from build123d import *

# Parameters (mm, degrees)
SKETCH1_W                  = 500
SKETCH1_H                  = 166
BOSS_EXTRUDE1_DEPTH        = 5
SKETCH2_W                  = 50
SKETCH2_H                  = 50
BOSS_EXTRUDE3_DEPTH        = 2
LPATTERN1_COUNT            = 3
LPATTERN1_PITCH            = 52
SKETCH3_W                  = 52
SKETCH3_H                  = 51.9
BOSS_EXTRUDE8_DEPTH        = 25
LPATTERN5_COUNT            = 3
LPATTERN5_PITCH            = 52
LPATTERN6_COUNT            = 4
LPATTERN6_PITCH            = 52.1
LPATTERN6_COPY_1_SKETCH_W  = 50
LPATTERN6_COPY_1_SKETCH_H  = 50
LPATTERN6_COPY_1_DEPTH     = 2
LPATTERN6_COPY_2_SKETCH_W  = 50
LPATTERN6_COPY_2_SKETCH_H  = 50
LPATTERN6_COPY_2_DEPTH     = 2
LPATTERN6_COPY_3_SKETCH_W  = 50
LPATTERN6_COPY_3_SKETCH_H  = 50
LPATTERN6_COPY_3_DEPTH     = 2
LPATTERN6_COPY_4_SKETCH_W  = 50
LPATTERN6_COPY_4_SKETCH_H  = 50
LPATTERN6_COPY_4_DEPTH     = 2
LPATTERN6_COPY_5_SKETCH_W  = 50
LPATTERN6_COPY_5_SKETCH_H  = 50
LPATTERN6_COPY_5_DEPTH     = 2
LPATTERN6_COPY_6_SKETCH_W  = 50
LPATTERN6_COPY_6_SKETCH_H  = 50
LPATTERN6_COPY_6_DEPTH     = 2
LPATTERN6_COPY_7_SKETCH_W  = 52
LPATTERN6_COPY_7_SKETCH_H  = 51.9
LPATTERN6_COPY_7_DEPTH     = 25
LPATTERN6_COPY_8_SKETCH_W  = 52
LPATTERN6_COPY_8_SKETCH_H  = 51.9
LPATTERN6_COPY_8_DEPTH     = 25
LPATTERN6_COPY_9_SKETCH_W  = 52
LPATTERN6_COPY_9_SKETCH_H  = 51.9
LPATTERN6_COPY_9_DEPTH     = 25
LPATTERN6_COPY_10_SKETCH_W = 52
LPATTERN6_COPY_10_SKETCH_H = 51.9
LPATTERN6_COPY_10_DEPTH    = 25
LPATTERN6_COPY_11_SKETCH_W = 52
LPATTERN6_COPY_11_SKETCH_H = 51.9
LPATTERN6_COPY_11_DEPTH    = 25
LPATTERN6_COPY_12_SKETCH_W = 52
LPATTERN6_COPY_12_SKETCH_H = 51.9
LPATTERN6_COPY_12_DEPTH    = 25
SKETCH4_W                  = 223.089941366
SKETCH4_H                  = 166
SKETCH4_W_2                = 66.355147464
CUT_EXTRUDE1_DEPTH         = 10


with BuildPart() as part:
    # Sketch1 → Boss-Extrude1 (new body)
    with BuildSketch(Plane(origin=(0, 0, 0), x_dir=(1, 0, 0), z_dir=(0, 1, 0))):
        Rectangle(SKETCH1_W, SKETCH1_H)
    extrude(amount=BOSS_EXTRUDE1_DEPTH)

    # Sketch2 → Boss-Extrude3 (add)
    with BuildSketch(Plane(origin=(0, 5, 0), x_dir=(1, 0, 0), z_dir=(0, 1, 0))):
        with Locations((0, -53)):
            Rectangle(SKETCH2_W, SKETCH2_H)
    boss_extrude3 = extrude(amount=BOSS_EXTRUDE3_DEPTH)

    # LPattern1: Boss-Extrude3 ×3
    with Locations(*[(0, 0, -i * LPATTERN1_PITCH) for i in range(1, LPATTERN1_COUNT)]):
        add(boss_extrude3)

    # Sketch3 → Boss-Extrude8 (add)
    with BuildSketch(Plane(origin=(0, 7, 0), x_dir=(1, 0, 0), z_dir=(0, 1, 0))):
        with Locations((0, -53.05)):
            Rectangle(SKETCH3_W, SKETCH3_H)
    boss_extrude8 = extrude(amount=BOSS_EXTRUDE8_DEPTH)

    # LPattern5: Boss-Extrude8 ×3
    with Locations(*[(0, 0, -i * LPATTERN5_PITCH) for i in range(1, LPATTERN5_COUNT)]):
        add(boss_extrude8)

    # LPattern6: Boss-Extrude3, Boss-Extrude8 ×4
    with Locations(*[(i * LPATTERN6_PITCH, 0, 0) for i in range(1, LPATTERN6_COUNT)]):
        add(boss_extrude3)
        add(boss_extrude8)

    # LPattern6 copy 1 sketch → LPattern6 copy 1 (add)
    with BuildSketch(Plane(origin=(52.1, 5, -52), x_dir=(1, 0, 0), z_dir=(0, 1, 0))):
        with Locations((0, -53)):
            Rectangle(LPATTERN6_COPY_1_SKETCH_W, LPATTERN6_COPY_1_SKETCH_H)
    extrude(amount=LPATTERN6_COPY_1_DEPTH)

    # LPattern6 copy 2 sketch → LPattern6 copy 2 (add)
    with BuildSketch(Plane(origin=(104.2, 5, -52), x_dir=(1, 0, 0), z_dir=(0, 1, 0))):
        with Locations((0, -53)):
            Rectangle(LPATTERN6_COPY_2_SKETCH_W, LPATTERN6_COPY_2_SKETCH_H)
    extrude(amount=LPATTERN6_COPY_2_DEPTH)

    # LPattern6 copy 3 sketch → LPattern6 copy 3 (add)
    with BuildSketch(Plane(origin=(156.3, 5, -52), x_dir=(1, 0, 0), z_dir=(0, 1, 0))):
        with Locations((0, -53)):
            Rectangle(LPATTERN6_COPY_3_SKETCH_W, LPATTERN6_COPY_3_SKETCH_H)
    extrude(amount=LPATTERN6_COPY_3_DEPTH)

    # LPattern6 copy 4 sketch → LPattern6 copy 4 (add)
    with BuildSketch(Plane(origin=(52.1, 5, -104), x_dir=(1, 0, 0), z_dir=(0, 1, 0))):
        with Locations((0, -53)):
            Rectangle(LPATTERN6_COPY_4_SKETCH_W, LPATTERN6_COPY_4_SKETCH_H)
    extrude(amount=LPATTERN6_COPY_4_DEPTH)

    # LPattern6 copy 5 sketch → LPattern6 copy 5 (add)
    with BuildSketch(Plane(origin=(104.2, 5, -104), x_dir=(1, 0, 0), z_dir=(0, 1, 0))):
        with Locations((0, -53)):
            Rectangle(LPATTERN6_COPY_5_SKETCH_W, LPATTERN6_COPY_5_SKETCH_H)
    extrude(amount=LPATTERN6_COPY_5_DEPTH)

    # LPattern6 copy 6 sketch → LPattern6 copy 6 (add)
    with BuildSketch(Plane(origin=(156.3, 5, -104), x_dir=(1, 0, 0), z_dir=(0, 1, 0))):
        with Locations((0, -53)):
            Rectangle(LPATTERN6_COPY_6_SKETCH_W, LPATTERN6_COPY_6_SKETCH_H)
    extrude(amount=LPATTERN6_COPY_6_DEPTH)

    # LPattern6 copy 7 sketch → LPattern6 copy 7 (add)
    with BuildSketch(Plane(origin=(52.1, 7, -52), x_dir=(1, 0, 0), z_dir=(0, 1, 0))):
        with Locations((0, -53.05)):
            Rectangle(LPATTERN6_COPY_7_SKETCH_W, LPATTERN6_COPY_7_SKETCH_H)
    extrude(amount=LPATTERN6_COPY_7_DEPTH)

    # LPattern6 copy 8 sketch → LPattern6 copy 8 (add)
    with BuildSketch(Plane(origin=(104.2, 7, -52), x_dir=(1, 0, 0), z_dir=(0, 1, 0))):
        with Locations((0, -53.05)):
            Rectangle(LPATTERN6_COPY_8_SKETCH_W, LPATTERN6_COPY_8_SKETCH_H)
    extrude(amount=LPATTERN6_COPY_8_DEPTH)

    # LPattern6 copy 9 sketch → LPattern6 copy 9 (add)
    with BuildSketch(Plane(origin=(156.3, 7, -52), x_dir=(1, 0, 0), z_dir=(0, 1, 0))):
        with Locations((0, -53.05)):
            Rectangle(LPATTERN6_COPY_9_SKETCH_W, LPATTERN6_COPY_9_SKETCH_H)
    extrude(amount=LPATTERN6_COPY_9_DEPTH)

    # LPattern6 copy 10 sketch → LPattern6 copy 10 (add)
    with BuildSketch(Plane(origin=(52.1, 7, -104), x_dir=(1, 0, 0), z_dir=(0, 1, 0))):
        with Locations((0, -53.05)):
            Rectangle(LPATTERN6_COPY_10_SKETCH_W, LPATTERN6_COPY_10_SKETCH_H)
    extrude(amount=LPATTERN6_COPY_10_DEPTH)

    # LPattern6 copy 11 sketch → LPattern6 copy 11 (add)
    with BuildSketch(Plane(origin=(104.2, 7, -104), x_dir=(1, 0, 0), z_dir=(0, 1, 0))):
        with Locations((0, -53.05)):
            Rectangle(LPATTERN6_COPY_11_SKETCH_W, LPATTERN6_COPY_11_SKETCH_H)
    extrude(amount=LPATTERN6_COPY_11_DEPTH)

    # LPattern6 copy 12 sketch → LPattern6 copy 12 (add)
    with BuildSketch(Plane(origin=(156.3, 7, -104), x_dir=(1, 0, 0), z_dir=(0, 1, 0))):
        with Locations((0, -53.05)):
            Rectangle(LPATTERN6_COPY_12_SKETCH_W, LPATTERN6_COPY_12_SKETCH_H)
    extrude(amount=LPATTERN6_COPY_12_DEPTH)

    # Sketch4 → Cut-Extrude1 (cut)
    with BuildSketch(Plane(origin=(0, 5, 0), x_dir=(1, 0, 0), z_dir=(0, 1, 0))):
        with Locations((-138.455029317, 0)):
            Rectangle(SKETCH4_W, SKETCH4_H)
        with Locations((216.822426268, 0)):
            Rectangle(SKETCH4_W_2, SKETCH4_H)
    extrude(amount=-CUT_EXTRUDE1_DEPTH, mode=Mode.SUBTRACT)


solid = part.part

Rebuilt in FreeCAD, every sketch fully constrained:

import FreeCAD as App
import Part
import Sketcher
from FreeCAD import Vector


def add_polygon(sketch, points):
    """Adds a closed chain of lines whose ends are joined by coincident constraints."""
    first, n = sketch.GeometryCount, len(points)
    for a, b in zip(points, points[1:] + points[:1]):
        sketch.addGeometry(Part.LineSegment(App.Vector(*a, 0), App.Vector(*b, 0)), False)
    for i in range(n):
        sketch.addConstraint(Sketcher.Constraint("Coincident", first + i, 2, first + (i + 1) % n, 1))

doc = App.newDocument("Part")
body = doc.addObject("PartDesign::Body", "Body")

sketch1 = body.newObject("Sketcher::SketchObject", "Sketch")
sketch1.AttachmentSupport = (doc.getObject("XZ_Plane"), [""])
sketch1.MapMode = "FlatFace"
add_polygon(sketch1, [(-250, -83), (-250, 83), (250, 83), (250, -83)])
sketch1.addConstraint(Sketcher.Constraint("Vertical", 0))
sketch1.addConstraint(Sketcher.Constraint("Horizontal", 1))
sketch1.addConstraint(Sketcher.Constraint("Vertical", 2))
sketch1.addConstraint(Sketcher.Constraint("Horizontal", 3))
sketch1.addConstraint(Sketcher.Constraint("Symmetric", 0, 2, 2, 2, -1, 1))
sketch1.addConstraint(Sketcher.Constraint("DistanceX", 1, 1, 1, 2, 500.0))
sketch1.addConstraint(Sketcher.Constraint("DistanceY", 0, 1, 0, 2, 166.0))
pad1 = body.newObject("PartDesign::Pad", "Pad")
pad1.Profile = sketch1
pad1.Length = 5
pad1.Reversed = True

sketch2 = body.newObject("Sketcher::SketchObject", "Sketch001")
sketch2.AttachmentSupport = (doc.getObject("XZ_Plane"), [""])
sketch2.MapMode = "FlatFace"
sketch2.AttachmentOffset = App.Placement(Vector(0, 0, -5), App.Rotation())
add_polygon(sketch2, [(-25, 28), (-25, 78), (25, 78), (25, 28)])
sketch2.addConstraint(Sketcher.Constraint("Vertical", 0))
sketch2.addConstraint(Sketcher.Constraint("Horizontal", 1))
sketch2.addConstraint(Sketcher.Constraint("Vertical", 2))
sketch2.addConstraint(Sketcher.Constraint("Horizontal", 3))
sketch2.addConstraint(Sketcher.Constraint("Equal", 3, 0))
sketch2.addConstraint(Sketcher.Constraint("DistanceX", 1, 1, 1, 2, 50.0))
sketch2.addConstraint(Sketcher.Constraint("DistanceX", 0, 2, -1, 1, 25.0))
sketch2.addConstraint(Sketcher.Constraint("DistanceY", -1, 1, 0, 2, 78.0))
pad2 = body.newObject("PartDesign::Pad", "Pad001")
pad2.Profile = sketch2
pad2.Length = 2
pad2.Reversed = True
doc.recompute()

linearpattern = body.newObject("PartDesign::LinearPattern", "LinearPattern")
linearpattern.Originals = [pad2]
linearpattern.Direction = (doc.getObject("Z_Axis"), [""])
linearpattern.Mode = "offset"
linearpattern.Offset = 52
linearpattern.Occurrences = 3
linearpattern.Reversed = True
body.Tip = linearpattern

sketch3 = body.newObject("Sketcher::SketchObject", "Sketch002")
sketch3.AttachmentSupport = (doc.getObject("XZ_Plane"), [""])
sketch3.MapMode = "FlatFace"
sketch3.AttachmentOffset = App.Placement(Vector(0, 0, -7), App.Rotation())
add_polygon(sketch3, [(-26, 27.1), (-26, 79), (26, 79), (26, 27.1)])
sketch3.addConstraint(Sketcher.Constraint("Vertical", 0))
sketch3.addConstraint(Sketcher.Constraint("Horizontal", 1))
sketch3.addConstraint(Sketcher.Constraint("Vertical", 2))
sketch3.addConstraint(Sketcher.Constraint("Horizontal", 3))
sketch3.addConstraint(Sketcher.Constraint("DistanceX", 1, 1, 1, 2, 52.0))
sketch3.addConstraint(Sketcher.Constraint("DistanceY", 0, 1, 0, 2, 51.9))
sketch3.addConstraint(Sketcher.Constraint("DistanceX", 0, 2, -1, 1, 26.0))
sketch3.addConstraint(Sketcher.Constraint("DistanceY", -1, 1, 0, 2, 79.0))
pad3 = body.newObject("PartDesign::Pad", "Pad002")
pad3.Profile = sketch3
pad3.Length = 25
pad3.Reversed = True
doc.recompute()

linearpattern2 = body.newObject("PartDesign::LinearPattern", "LinearPattern001")
linearpattern2.Originals = [pad3]
linearpattern2.Direction = (doc.getObject("Z_Axis"), [""])
linearpattern2.Mode = "offset"
linearpattern2.Offset = 52
linearpattern2.Occurrences = 3
linearpattern2.Reversed = True
body.Tip = linearpattern2
doc.recompute()

linearpattern3 = body.newObject("PartDesign::LinearPattern", "LinearPattern002")
linearpattern3.Originals = [pad2, pad3]
linearpattern3.Direction = (doc.getObject("X_Axis"), [""])
linearpattern3.Mode = "offset"
linearpattern3.Offset = 52.1
linearpattern3.Occurrences = 4
body.Tip = linearpattern3

sketch4 = body.newObject("Sketcher::SketchObject", "Sketch003")
sketch4.AttachmentSupport = (doc.getObject("XZ_Plane"), [""])
sketch4.MapMode = "FlatFace"
sketch4.AttachmentOffset = App.Placement(Vector(0, 0, -5), App.Rotation())
add_polygon(sketch4, [(27.1, -24), (27.1, 26), (77.1, 26), (77.1, -24)])
sketch4.addConstraint(Sketcher.Constraint("Vertical", 0))
sketch4.addConstraint(Sketcher.Constraint("Horizontal", 1))
sketch4.addConstraint(Sketcher.Constraint("Vertical", 2))
sketch4.addConstraint(Sketcher.Constraint("Horizontal", 3))
sketch4.addConstraint(Sketcher.Constraint("Equal", 3, 0))
sketch4.addConstraint(Sketcher.Constraint("DistanceX", 1, 1, 1, 2, 50.0))
sketch4.addConstraint(Sketcher.Constraint("DistanceY", -1, 1, 0, 2, 26.0))
sketch4.addConstraint(Sketcher.Constraint("DistanceX", -1, 1, 0, 2, 27.1))
pad4 = body.newObject("PartDesign::Pad", "Pad003")
pad4.Profile = sketch4
pad4.Length = 2
pad4.Reversed = True

sketch5 = body.newObject("Sketcher::SketchObject", "Sketch004")
sketch5.AttachmentSupport = (doc.getObject("XZ_Plane"), [""])
sketch5.MapMode = "FlatFace"
sketch5.AttachmentOffset = App.Placement(Vector(0, 0, -5), App.Rotation())
add_polygon(sketch5, [(79.2, -24), (79.2, 26), (129.2, 26), (129.2, -24)])
sketch5.addConstraint(Sketcher.Constraint("Vertical", 0))
sketch5.addConstraint(Sketcher.Constraint("Horizontal", 1))
sketch5.addConstraint(Sketcher.Constraint("Vertical", 2))
sketch5.addConstraint(Sketcher.Constraint("Horizontal", 3))
sketch5.addConstraint(Sketcher.Constraint("Equal", 3, 0))
sketch5.addConstraint(Sketcher.Constraint("DistanceX", 1, 1, 1, 2, 50.0))
sketch5.addConstraint(Sketcher.Constraint("DistanceY", -1, 1, 0, 2, 26.0))
sketch5.addConstraint(Sketcher.Constraint("DistanceX", -1, 1, 0, 2, 79.2))
pad5 = body.newObject("PartDesign::Pad", "Pad004")
pad5.Profile = sketch5
pad5.Length = 2
pad5.Reversed = True

sketch6 = body.newObject("Sketcher::SketchObject", "Sketch005")
sketch6.AttachmentSupport = (doc.getObject("XZ_Plane"), [""])
sketch6.MapMode = "FlatFace"
sketch6.AttachmentOffset = App.Placement(Vector(0, 0, -5), App.Rotation())
add_polygon(sketch6, [(131.3, -24), (131.3, 26), (181.3, 26), (181.3, -24)])
sketch6.addConstraint(Sketcher.Constraint("Vertical", 0))
sketch6.addConstraint(Sketcher.Constraint("Horizontal", 1))
sketch6.addConstraint(Sketcher.Constraint("Vertical", 2))
sketch6.addConstraint(Sketcher.Constraint("Horizontal", 3))
sketch6.addConstraint(Sketcher.Constraint("Equal", 3, 0))
sketch6.addConstraint(Sketcher.Constraint("DistanceX", 1, 1, 1, 2, 50.0))
sketch6.addConstraint(Sketcher.Constraint("DistanceY", -1, 1, 0, 2, 26.0))
sketch6.addConstraint(Sketcher.Constraint("DistanceX", -1, 1, 0, 2, 131.3))
pad6 = body.newObject("PartDesign::Pad", "Pad005")
pad6.Profile = sketch6
pad6.Length = 2
pad6.Reversed = True

sketch7 = body.newObject("Sketcher::SketchObject", "Sketch006")
sketch7.AttachmentSupport = (doc.getObject("XZ_Plane"), [""])
sketch7.MapMode = "FlatFace"
sketch7.AttachmentOffset = App.Placement(Vector(0, 0, -5), App.Rotation())
add_polygon(sketch7, [(27.1, -76), (27.1, -26), (77.1, -26), (77.1, -76)])
sketch7.addConstraint(Sketcher.Constraint("Vertical", 0))
sketch7.addConstraint(Sketcher.Constraint("Horizontal", 1))
sketch7.addConstraint(Sketcher.Constraint("Vertical", 2))
sketch7.addConstraint(Sketcher.Constraint("Horizontal", 3))
sketch7.addConstraint(Sketcher.Constraint("Equal", 3, 0))
sketch7.addConstraint(Sketcher.Constraint("DistanceX", 1, 1, 1, 2, 50.0))
sketch7.addConstraint(Sketcher.Constraint("DistanceY", 0, 2, -1, 1, 26.0))
sketch7.addConstraint(Sketcher.Constraint("DistanceX", -1, 1, 0, 2, 27.1))
pad7 = body.newObject("PartDesign::Pad", "Pad006")
pad7.Profile = sketch7
pad7.Length = 2
pad7.Reversed = True

sketch8 = body.newObject("Sketcher::SketchObject", "Sketch007")
sketch8.AttachmentSupport = (doc.getObject("XZ_Plane"), [""])
sketch8.MapMode = "FlatFace"
sketch8.AttachmentOffset = App.Placement(Vector(0, 0, -5), App.Rotation())
add_polygon(sketch8, [(79.2, -76), (79.2, -26), (129.2, -26), (129.2, -76)])
sketch8.addConstraint(Sketcher.Constraint("Vertical", 0))
sketch8.addConstraint(Sketcher.Constraint("Horizontal", 1))
sketch8.addConstraint(Sketcher.Constraint("Vertical", 2))
sketch8.addConstraint(Sketcher.Constraint("Horizontal", 3))
sketch8.addConstraint(Sketcher.Constraint("Equal", 3, 0))
sketch8.addConstraint(Sketcher.Constraint("DistanceX", 1, 1, 1, 2, 50.0))
sketch8.addConstraint(Sketcher.Constraint("DistanceY", 0, 2, -1, 1, 26.0))
sketch8.addConstraint(Sketcher.Constraint("DistanceX", -1, 1, 0, 2, 79.2))
pad8 = body.newObject("PartDesign::Pad", "Pad007")
pad8.Profile = sketch8
pad8.Length = 2
pad8.Reversed = True

sketch9 = body.newObject("Sketcher::SketchObject", "Sketch008")
sketch9.AttachmentSupport = (doc.getObject("XZ_Plane"), [""])
sketch9.MapMode = "FlatFace"
sketch9.AttachmentOffset = App.Placement(Vector(0, 0, -5), App.Rotation())
add_polygon(sketch9, [(131.3, -76), (131.3, -26), (181.3, -26), (181.3, -76)])
sketch9.addConstraint(Sketcher.Constraint("Vertical", 0))
sketch9.addConstraint(Sketcher.Constraint("Horizontal", 1))
sketch9.addConstraint(Sketcher.Constraint("Vertical", 2))
sketch9.addConstraint(Sketcher.Constraint("Horizontal", 3))
sketch9.addConstraint(Sketcher.Constraint("Equal", 3, 0))
sketch9.addConstraint(Sketcher.Constraint("DistanceX", 1, 1, 1, 2, 50.0))
sketch9.addConstraint(Sketcher.Constraint("DistanceY", 0, 2, -1, 1, 26.0))
sketch9.addConstraint(Sketcher.Constraint("DistanceX", -1, 1, 0, 2, 131.3))
pad9 = body.newObject("PartDesign::Pad", "Pad008")
pad9.Profile = sketch9
pad9.Length = 2
pad9.Reversed = True

sketch10 = body.newObject("Sketcher::SketchObject", "Sketch009")
sketch10.AttachmentSupport = (doc.getObject("XZ_Plane"), [""])
sketch10.MapMode = "FlatFace"
sketch10.AttachmentOffset = App.Placement(Vector(0, 0, -7), App.Rotation())
add_polygon(sketch10, [(26.1, -24.9), (26.1, 27), (78.1, 27), (78.1, -24.9)])
sketch10.addConstraint(Sketcher.Constraint("Vertical", 0))
sketch10.addConstraint(Sketcher.Constraint("Horizontal", 1))
sketch10.addConstraint(Sketcher.Constraint("Vertical", 2))
sketch10.addConstraint(Sketcher.Constraint("Horizontal", 3))
sketch10.addConstraint(Sketcher.Constraint("DistanceX", 1, 1, 1, 2, 52.0))
sketch10.addConstraint(Sketcher.Constraint("DistanceY", 0, 1, 0, 2, 51.9))
sketch10.addConstraint(Sketcher.Constraint("DistanceY", -1, 1, 0, 2, 27.0))
sketch10.addConstraint(Sketcher.Constraint("DistanceX", -1, 1, 0, 2, 26.1))
pad10 = body.newObject("PartDesign::Pad", "Pad009")
pad10.Profile = sketch10
pad10.Length = 25
pad10.Reversed = True

sketch11 = body.newObject("Sketcher::SketchObject", "Sketch010")
sketch11.AttachmentSupport = (doc.getObject("XZ_Plane"), [""])
sketch11.MapMode = "FlatFace"
sketch11.AttachmentOffset = App.Placement(Vector(0, 0, -7), App.Rotation())
add_polygon(sketch11, [(78.2, -24.9), (78.2, 27), (130.2, 27), (130.2, -24.9)])
sketch11.addConstraint(Sketcher.Constraint("Vertical", 0))
sketch11.addConstraint(Sketcher.Constraint("Horizontal", 1))
sketch11.addConstraint(Sketcher.Constraint("Vertical", 2))
sketch11.addConstraint(Sketcher.Constraint("Horizontal", 3))
sketch11.addConstraint(Sketcher.Constraint("DistanceX", 1, 1, 1, 2, 52.0))
sketch11.addConstraint(Sketcher.Constraint("DistanceY", 0, 1, 0, 2, 51.9))
sketch11.addConstraint(Sketcher.Constraint("DistanceY", -1, 1, 0, 2, 27.0))
sketch11.addConstraint(Sketcher.Constraint("DistanceX", -1, 1, 0, 2, 78.2))
pad11 = body.newObject("PartDesign::Pad", "Pad010")
pad11.Profile = sketch11
pad11.Length = 25
pad11.Reversed = True

sketch12 = body.newObject("Sketcher::SketchObject", "Sketch011")
sketch12.AttachmentSupport = (doc.getObject("XZ_Plane"), [""])
sketch12.MapMode = "FlatFace"
sketch12.AttachmentOffset = App.Placement(Vector(0, 0, -7), App.Rotation())
add_polygon(sketch12, [(130.3, -24.9), (130.3, 27), (182.3, 27), (182.3, -24.9)])
sketch12.addConstraint(Sketcher.Constraint("Vertical", 0))
sketch12.addConstraint(Sketcher.Constraint("Horizontal", 1))
sketch12.addConstraint(Sketcher.Constraint("Vertical", 2))
sketch12.addConstraint(Sketcher.Constraint("Horizontal", 3))
sketch12.addConstraint(Sketcher.Constraint("DistanceX", 1, 1, 1, 2, 52.0))
sketch12.addConstraint(Sketcher.Constraint("DistanceY", 0, 1, 0, 2, 51.9))
sketch12.addConstraint(Sketcher.Constraint("DistanceY", -1, 1, 0, 2, 27.0))
sketch12.addConstraint(Sketcher.Constraint("DistanceX", -1, 1, 0, 2, 130.3))
pad12 = body.newObject("PartDesign::Pad", "Pad011")
pad12.Profile = sketch12
pad12.Length = 25
pad12.Reversed = True

sketch13 = body.newObject("Sketcher::SketchObject", "Sketch012")
sketch13.AttachmentSupport = (doc.getObject("XZ_Plane"), [""])
sketch13.MapMode = "FlatFace"
sketch13.AttachmentOffset = App.Placement(Vector(0, 0, -7), App.Rotation())
add_polygon(sketch13, [(26.1, -76.9), (26.1, -25), (78.1, -25), (78.1, -76.9)])
sketch13.addConstraint(Sketcher.Constraint("Vertical", 0))
sketch13.addConstraint(Sketcher.Constraint("Horizontal", 1))
sketch13.addConstraint(Sketcher.Constraint("Vertical", 2))
sketch13.addConstraint(Sketcher.Constraint("Horizontal", 3))
sketch13.addConstraint(Sketcher.Constraint("DistanceX", 1, 1, 1, 2, 52.0))
sketch13.addConstraint(Sketcher.Constraint("DistanceY", 0, 1, 0, 2, 51.9))
sketch13.addConstraint(Sketcher.Constraint("DistanceY", 0, 2, -1, 1, 25.0))
sketch13.addConstraint(Sketcher.Constraint("DistanceX", -1, 1, 0, 2, 26.1))
pad13 = body.newObject("PartDesign::Pad", "Pad012")
pad13.Profile = sketch13
pad13.Length = 25
pad13.Reversed = True

sketch14 = body.newObject("Sketcher::SketchObject", "Sketch013")
sketch14.AttachmentSupport = (doc.getObject("XZ_Plane"), [""])
sketch14.MapMode = "FlatFace"
sketch14.AttachmentOffset = App.Placement(Vector(0, 0, -7), App.Rotation())
add_polygon(sketch14, [(78.2, -76.9), (78.2, -25), (130.2, -25), (130.2, -76.9)])
sketch14.addConstraint(Sketcher.Constraint("Vertical", 0))
sketch14.addConstraint(Sketcher.Constraint("Horizontal", 1))
sketch14.addConstraint(Sketcher.Constraint("Vertical", 2))
sketch14.addConstraint(Sketcher.Constraint("Horizontal", 3))
sketch14.addConstraint(Sketcher.Constraint("DistanceX", 1, 1, 1, 2, 52.0))
sketch14.addConstraint(Sketcher.Constraint("DistanceY", 0, 1, 0, 2, 51.9))
sketch14.addConstraint(Sketcher.Constraint("DistanceY", 0, 2, -1, 1, 25.0))
sketch14.addConstraint(Sketcher.Constraint("DistanceX", -1, 1, 0, 2, 78.2))
pad14 = body.newObject("PartDesign::Pad", "Pad013")
pad14.Profile = sketch14
pad14.Length = 25
pad14.Reversed = True

sketch15 = body.newObject("Sketcher::SketchObject", "Sketch014")
sketch15.AttachmentSupport = (doc.getObject("XZ_Plane"), [""])
sketch15.MapMode = "FlatFace"
sketch15.AttachmentOffset = App.Placement(Vector(0, 0, -7), App.Rotation())
add_polygon(sketch15, [(130.3, -76.9), (130.3, -25), (182.3, -25), (182.3, -76.9)])
sketch15.addConstraint(Sketcher.Constraint("Vertical", 0))
sketch15.addConstraint(Sketcher.Constraint("Horizontal", 1))
sketch15.addConstraint(Sketcher.Constraint("Vertical", 2))
sketch15.addConstraint(Sketcher.Constraint("Horizontal", 3))
sketch15.addConstraint(Sketcher.Constraint("DistanceX", 1, 1, 1, 2, 52.0))
sketch15.addConstraint(Sketcher.Constraint("DistanceY", 0, 1, 0, 2, 51.9))
sketch15.addConstraint(Sketcher.Constraint("DistanceY", 0, 2, -1, 1, 25.0))
sketch15.addConstraint(Sketcher.Constraint("DistanceX", -1, 1, 0, 2, 130.3))
pad15 = body.newObject("PartDesign::Pad", "Pad014")
pad15.Profile = sketch15
pad15.Length = 25
pad15.Reversed = True

sketch16 = body.newObject("Sketcher::SketchObject", "Sketch015")
sketch16.AttachmentSupport = (doc.getObject("XZ_Plane"), [""])
sketch16.MapMode = "FlatFace"
sketch16.AttachmentOffset = App.Placement(Vector(0, 0, -5), App.Rotation())
add_polygon(sketch16, [(-250, -83), (-250, 83), (-26.910059, 83), (-26.910059, -83)])
add_polygon(sketch16, [(183.644853, -83), (183.644853, 83), (250, 83), (250, -83)])
sketch16.addConstraint(Sketcher.Constraint("Vertical", 0))
sketch16.addConstraint(Sketcher.Constraint("Horizontal", 1))
sketch16.addConstraint(Sketcher.Constraint("Vertical", 2))
sketch16.addConstraint(Sketcher.Constraint("Horizontal", 3))
sketch16.addConstraint(Sketcher.Constraint("Vertical", 4))
sketch16.addConstraint(Sketcher.Constraint("Horizontal", 5))
sketch16.addConstraint(Sketcher.Constraint("Vertical", 6))
sketch16.addConstraint(Sketcher.Constraint("Horizontal", 7))
sketch16.addConstraint(Sketcher.Constraint("Symmetric", 3, 2, 5, 2, -1, 1))
sketch16.addConstraint(Sketcher.Constraint("Horizontal", 1, 2, 4, 2))
sketch16.addConstraint(Sketcher.Constraint("Horizontal", 3, 2, 6, 2))
sketch16.addConstraint(Sketcher.Constraint("DistanceY", 0, 1, 0, 2, 166.0))
sketch16.addConstraint(Sketcher.Constraint("DistanceX", 0, 2, -1, 1, 250.0))
sketch16.addConstraint(Sketcher.Constraint("DistanceX", 1, 1, 1, 2, 223.089941))
sketch16.addConstraint(Sketcher.Constraint("DistanceX", 5, 1, 5, 2, 66.355147))
pocket1 = body.newObject("PartDesign::Pocket", "Pocket")
pocket1.Profile = sketch16
pocket1.Length = 10
pocket1.Reversed = True

doc.recompute()
